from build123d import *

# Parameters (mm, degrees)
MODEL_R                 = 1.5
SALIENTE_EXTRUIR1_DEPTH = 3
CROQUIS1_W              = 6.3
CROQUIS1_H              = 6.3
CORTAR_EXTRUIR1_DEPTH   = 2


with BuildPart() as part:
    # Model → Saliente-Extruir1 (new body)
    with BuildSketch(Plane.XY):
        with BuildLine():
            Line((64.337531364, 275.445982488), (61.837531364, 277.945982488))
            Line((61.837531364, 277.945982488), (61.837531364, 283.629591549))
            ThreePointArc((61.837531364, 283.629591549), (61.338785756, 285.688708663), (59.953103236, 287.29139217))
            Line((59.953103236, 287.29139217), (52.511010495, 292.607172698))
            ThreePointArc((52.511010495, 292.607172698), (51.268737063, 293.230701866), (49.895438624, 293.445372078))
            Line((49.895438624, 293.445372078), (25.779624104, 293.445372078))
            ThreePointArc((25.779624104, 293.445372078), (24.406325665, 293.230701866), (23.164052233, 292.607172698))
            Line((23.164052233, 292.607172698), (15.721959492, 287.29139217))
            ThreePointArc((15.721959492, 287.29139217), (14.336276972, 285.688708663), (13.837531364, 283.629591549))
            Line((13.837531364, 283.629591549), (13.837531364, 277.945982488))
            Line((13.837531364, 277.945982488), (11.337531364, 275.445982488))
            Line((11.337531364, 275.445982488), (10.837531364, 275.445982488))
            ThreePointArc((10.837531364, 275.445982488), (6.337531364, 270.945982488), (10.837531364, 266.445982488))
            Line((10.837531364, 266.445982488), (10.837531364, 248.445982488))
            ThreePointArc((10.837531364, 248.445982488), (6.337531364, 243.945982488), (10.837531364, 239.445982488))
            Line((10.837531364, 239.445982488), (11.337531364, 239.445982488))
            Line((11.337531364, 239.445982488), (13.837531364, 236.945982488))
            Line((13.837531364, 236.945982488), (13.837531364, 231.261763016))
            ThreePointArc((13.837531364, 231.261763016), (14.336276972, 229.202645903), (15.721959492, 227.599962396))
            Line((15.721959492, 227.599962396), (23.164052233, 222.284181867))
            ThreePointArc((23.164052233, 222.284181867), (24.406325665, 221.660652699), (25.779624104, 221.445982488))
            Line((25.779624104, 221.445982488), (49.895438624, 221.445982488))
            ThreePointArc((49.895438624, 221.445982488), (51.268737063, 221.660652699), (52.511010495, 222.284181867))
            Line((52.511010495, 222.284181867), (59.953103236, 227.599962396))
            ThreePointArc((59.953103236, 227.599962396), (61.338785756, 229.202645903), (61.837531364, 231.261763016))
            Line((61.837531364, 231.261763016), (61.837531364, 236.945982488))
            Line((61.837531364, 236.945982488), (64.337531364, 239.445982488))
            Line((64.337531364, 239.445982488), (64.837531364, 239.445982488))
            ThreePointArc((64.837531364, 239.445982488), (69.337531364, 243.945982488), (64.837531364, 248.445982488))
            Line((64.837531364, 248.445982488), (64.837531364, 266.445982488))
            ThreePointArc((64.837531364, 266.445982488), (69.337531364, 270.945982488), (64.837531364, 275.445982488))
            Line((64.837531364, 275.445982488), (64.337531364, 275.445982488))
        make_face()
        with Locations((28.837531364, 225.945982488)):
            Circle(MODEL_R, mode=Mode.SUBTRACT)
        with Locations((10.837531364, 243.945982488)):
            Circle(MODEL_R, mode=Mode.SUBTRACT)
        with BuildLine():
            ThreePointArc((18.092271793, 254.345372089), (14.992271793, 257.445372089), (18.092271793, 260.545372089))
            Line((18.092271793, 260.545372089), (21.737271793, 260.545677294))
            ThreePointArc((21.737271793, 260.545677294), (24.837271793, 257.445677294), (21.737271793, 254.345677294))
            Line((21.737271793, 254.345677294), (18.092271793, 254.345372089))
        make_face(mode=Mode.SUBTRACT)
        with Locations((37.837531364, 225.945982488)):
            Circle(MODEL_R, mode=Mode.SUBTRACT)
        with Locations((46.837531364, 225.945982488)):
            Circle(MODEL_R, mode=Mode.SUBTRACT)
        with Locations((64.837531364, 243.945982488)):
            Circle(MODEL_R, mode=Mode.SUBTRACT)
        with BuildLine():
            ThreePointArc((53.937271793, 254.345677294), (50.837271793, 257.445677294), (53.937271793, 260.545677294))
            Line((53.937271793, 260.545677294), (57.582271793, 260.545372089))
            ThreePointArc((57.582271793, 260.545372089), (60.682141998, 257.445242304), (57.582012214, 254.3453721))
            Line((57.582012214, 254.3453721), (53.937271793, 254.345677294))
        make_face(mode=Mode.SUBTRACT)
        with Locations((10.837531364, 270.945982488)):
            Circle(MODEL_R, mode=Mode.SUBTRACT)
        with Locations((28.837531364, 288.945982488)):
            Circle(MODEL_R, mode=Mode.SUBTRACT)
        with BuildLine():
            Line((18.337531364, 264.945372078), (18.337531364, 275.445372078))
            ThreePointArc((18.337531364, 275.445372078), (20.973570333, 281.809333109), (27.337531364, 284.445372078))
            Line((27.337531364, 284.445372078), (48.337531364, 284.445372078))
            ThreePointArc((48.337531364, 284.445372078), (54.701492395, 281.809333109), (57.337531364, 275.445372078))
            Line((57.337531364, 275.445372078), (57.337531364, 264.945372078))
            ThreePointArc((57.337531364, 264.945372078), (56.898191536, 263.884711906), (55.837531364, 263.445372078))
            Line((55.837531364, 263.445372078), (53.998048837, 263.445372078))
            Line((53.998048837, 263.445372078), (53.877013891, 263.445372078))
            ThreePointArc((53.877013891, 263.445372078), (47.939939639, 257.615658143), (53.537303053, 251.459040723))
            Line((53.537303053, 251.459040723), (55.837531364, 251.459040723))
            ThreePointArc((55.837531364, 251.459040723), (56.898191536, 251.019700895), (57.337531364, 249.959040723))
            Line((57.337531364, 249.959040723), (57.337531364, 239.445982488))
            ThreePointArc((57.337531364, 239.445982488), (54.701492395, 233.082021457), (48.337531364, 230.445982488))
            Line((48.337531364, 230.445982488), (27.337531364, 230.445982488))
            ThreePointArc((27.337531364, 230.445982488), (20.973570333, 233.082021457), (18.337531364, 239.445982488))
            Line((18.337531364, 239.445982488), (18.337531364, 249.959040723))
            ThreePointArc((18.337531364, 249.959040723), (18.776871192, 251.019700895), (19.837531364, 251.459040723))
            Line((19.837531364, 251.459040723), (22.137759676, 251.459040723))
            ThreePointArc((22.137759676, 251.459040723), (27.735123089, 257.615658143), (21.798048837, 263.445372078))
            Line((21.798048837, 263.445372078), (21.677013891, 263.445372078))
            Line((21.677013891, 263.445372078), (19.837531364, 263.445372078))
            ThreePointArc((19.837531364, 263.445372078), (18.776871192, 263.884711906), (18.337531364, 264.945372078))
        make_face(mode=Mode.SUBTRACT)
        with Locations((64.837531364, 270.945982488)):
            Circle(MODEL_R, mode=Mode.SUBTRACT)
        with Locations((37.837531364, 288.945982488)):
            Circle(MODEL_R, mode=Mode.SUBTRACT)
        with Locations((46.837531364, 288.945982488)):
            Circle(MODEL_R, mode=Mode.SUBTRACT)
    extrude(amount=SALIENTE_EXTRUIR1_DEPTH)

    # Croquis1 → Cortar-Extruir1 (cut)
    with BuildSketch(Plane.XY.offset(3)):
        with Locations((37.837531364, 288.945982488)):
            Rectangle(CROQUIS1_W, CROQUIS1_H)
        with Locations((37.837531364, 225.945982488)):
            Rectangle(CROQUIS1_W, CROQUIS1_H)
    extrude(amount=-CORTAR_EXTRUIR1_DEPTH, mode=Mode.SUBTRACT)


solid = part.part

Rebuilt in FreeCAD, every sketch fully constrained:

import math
import FreeCAD as App
import Part
import Sketcher


def add_polygon(sketch, points):
    """Adds a closed chain of lines whose ends are joined by coincident constraints."""
    first, n = sketch.GeometryCount, len(points)
    for a, b in zip(points, points[1:] + points[:1]):
        sketch.addGeometry(Part.LineSegment(App.Vector(*a, 0), App.Vector(*b, 0)), False)
    for i in range(n):
        sketch.addConstraint(Sketcher.Constraint("Coincident", first + i, 2, first + (i + 1) % n, 1))

doc = App.newDocument("Part")
body = doc.addObject("PartDesign::Body", "Body")

# Sketch on XY plane
sketch1 = body.newObject("Sketcher::SketchObject", "Sketch")
sketch1.AttachmentSupport = (doc.getObject("XY_Plane"), [""])
sketch1.MapMode = "FlatFace"
sketch1.addGeometry(Part.LineSegment(App.Vector(64.337531, 275.445982, 0), App.Vector(61.837531, 277.945982, 0)), False)
sketch1.addGeometry(Part.LineSegment(App.Vector(61.837531, 277.945982, 0), App.Vector(61.837531, 283.629592, 0)), False)
sketch1.addGeometry(Part.ArcOfCircle(Part.Circle(App.Vector(57.337531, 283.629592, 0), App.Vector(0, 0, 1), 4.5), math.radians(0), math.radians(54.462322)), False)
sketch1.addGeometry(Part.LineSegment(App.Vector(59.953103, 287.291392, 0), App.Vector(52.51101, 292.607173, 0)), False)
sketch1.addGeometry(Part.ArcOfCircle(Part.Circle(App.Vector(49.895439, 288.945372, 0), App.Vector(0, 0, 1), 4.5), math.radians(54.462322), math.radians(90)), False)
sketch1.addGeometry(Part.LineSegment(App.Vector(49.895439, 293.445372, 0), App.Vector(25.779624, 293.445372, 0)), False)
sketch1.addGeometry(Part.ArcOfCircle(Part.Circle(App.Vector(25.779624, 288.945372, 0), App.Vector(0, 0, 1), 4.5), math.radians(90), math.radians(125.537678)), False)
sketch1.addGeometry(Part.LineSegment(App.Vector(23.164052, 292.607173, 0), App.Vector(15.721959, 287.291392, 0)), False)
sketch1.addGeometry(Part.ArcOfCircle(Part.Circle(App.Vector(18.337531, 283.629592, 0), App.Vector(0, 0, 1), 4.5), math.radians(125.537678), math.radians(180)), False)
sketch1.addGeometry(Part.LineSegment(App.Vector(13.837531, 283.629592, 0), App.Vector(13.837531, 277.945982, 0)), False)
sketch1.addGeometry(Part.LineSegment(App.Vector(13.837531, 277.945982, 0), App.Vector(11.337531, 275.445982, 0)), False)
sketch1.addGeometry(Part.LineSegment(App.Vector(11.337531, 275.445982, 0), App.Vector(10.837531, 275.445982, 0)), False)
sketch1.addGeometry(Part.ArcOfCircle(Part.Circle(App.Vector(10.837531, 270.945982, 0), App.Vector(0, 0, 1), 4.5), math.radians(90), math.radians(270)), False)
sketch1.addGeometry(Part.LineSegment(App.Vector(10.837531, 266.445982, 0), App.Vector(10.837531, 248.445982, 0)), False)
sketch1.addGeometry(Part.ArcOfCircle(Part.Circle(App.Vector(10.837531, 243.945982, 0), App.Vector(0, 0, 1), 4.5), math.radians(90), math.radians(270)), False)
sketch1.addGeometry(Part.LineSegment(App.Vector(10.837531, 239.445982, 0), App.Vector(11.337531, 239.445982, 0)), False)
sketch1.addGeometry(Part.LineSegment(App.Vector(11.337531, 239.445982, 0), App.Vector(13.837531, 236.945982, 0)), False)
sketch1.addGeometry(Part.LineSegment(App.Vector(13.837531, 236.945982, 0), App.Vector(13.837531, 231.261763, 0)), False)
sketch1.addGeometry(Part.ArcOfCircle(Part.Circle(App.Vector(18.337531, 231.261763, 0), App.Vector(0, 0, 1), 4.5), math.radians(-180), math.radians(-125.537678)), False)
sketch1.addGeometry(Part.LineSegment(App.Vector(15.721959, 227.599962, 0), App.Vector(23.164052, 222.284182, 0)), False)
sketch1.addGeometry(Part.ArcOfCircle(Part.Circle(App.Vector(25.779624, 225.945982, 0), App.Vector(0, 0, 1), 4.5), math.radians(-125.537678), math.radians(-90)), False)
sketch1.addGeometry(Part.LineSegment(App.Vector(25.779624, 221.445982, 0), App.Vector(49.895439, 221.445982, 0)), False)
sketch1.addGeometry(Part.ArcOfCircle(Part.Circle(App.Vector(49.895439, 225.945982, 0), App.Vector(0, 0, 1), 4.5), math.radians(-90), math.radians(-54.462322)), False)
sketch1.addGeometry(Part.LineSegment(App.Vector(52.51101, 222.284182, 0), App.Vector(59.953103, 227.599962, 0)), False)
sketch1.addGeometry(Part.ArcOfCircle(Part.Circle(App.Vector(57.337531, 231.261763, 0), App.Vector(0, 0, 1), 4.5), math.radians(-54.462322), math.radians(0)), False)
sketch1.addGeometry(Part.LineSegment(App.Vector(61.837531, 231.261763, 0), App.Vector(61.837531, 236.945982, 0)), False)
sketch1.addGeometry(Part.LineSegment(App.Vector(61.837531, 236.945982, 0), App.Vector(64.337531, 239.445982, 0)), False)
sketch1.addGeometry(Part.LineSegment(App.Vector(64.337531, 239.445982, 0), App.Vector(64.837531, 239.445982, 0)), False)
sketch1.addGeometry(Part.ArcOfCircle(Part.Circle(App.Vector(64.837531, 243.945982, 0), App.Vector(0, 0, 1), 4.5), math.radians(-90), math.radians(90)), False)
sketch1.addGeometry(Part.LineSegment(App.Vector(64.837531, 248.445982, 0), App.Vector(64.837531, 266.445982, 0)), False)
sketch1.addGeometry(Part.ArcOfCircle(Part.Circle(App.Vector(64.837531, 270.945982, 0), App.Vector(0, 0, 1), 4.5), math.radians(-90), math.radians(90)), False)
sketch1.addGeometry(Part.LineSegment(App.Vector(64.837531, 275.445982, 0), App.Vector(64.337531, 275.445982, 0)), False)
sketch1.addGeometry(Part.Circle(App.Vector(28.837531, 225.945982, 0), App.Vector(0, 0, 1), 1.5), False)
sketch1.addGeometry(Part.Circle(App.Vector(10.837531, 243.945982, 0), App.Vector(0, 0, 1), 1.5), False)
sketch1.addGeometry(Part.LineSegment(App.Vector(21.737272, 254.345677, 0), App.Vector(18.092272, 254.345372, 0)), False)
sketch1.addGeometry(Part.ArcOfCircle(Part.Circle(App.Vector(18.092272, 257.445372, 0), App.Vector(0, 0, 1), 3.1), math.radians(90), math.radians(270)), False)
sketch1.addGeometry(Part.LineSegment(App.Vector(18.092272, 260.545372, 0), App.Vector(21.737272, 260.545677, 0)), False)
sketch1.addGeometry(Part.ArcOfCircle(Part.Circle(App.Vector(21.737272, 257.445677, 0), App.Vector(0, 0, 1), 3.1), math.radians(-90), math.radians(90)), False)
sketch1.addGeometry(Part.Circle(App.Vector(37.837531, 225.945982, 0), App.Vector(0, 0, 1), 1.5), False)
sketch1.addGeometry(Part.Circle(App.Vector(46.837531, 225.945982, 0), App.Vector(0, 0, 1), 1.5), False)
sketch1.addGeometry(Part.ArcOfCircle(Part.Circle(App.Vector(19.837531, 264.945372, 0), App.Vector(0, 0, 1), 1.5), math.radians(180), math.radians(270)), False)
sketch1.addGeometry(Part.LineSegment(App.Vector(18.337531, 264.945372, 0), App.Vector(18.337531, 275.445372, 0)), False)
sketch1.addGeometry(Part.ArcOfCircle(Part.Circle(App.Vector(27.337531, 275.445372, 0), App.Vector(0, 0, 1), 9), math.radians(90), math.radians(180)), False)
sketch1.addGeometry(Part.LineSegment(App.Vector(27.337531, 284.445372, 0), App.Vector(48.337531, 284.445372, 0)), False)
sketch1.addGeometry(Part.ArcOfCircle(Part.Circle(App.Vector(48.337531, 275.445372, 0), App.Vector(0, 0, 1), 9), math.radians(0), math.radians(90)), False)
sketch1.addGeometry(Part.LineSegment(App.Vector(57.337531, 275.445372, 0), App.Vector(57.337531, 264.945372, 0)), False)
sketch1.addGeometry(Part.ArcOfCircle(Part.Circle(App.Vector(55.837531, 264.945372, 0), App.Vector(0, 0, 1), 1.5), math.radians(-90), math.radians(0)), False)
sketch1.addGeometry(Part.LineSegment(App.Vector(55.837531, 263.445372, 0), App.Vector(53.877014, 263.445372, 0)), False)
sketch1.addGeometry(Part.ArcOfCircle(Part.Circle(App.Vector(53.937531, 257.445677, 0), App.Vector(0, 0, 1), 6), math.radians(90.577909), math.radians(266.175261)), False)
sketch1.addGeometry(Part.LineSegment(App.Vector(53.537303, 251.459041, 0), App.Vector(55.837531, 251.459041, 0)), False)
sketch1.addGeometry(Part.ArcOfCircle(Part.Circle(App.Vector(55.837531, 249.959041, 0), App.Vector(0, 0, 1), 1.5), math.radians(0), math.radians(90)), False)
sketch1.addGeometry(Part.LineSegment(App.Vector(57.337531, 249.959041, 0), App.Vector(57.337531, 239.445982, 0)), False)
sketch1.addGeometry(Part.ArcOfCircle(Part.Circle(App.Vector(48.337531, 239.445982, 0), App.Vector(0, 0, 1), 9), math.radians(-90), math.radians(0)), False)
sketch1.addGeometry(Part.LineSegment(App.Vector(48.337531, 230.445982, 0), App.Vector(27.337531, 230.445982, 0)), False)
sketch1.addGeometry(Part.ArcOfCircle(Part.Circle(App.Vector(27.337531, 239.445982, 0), App.Vector(0, 0, 1), 9), math.radians(180), math.radians(270)), False)
sketch1.addGeometry(Part.LineSegment(App.Vector(18.337531, 239.445982, 0), App.Vector(18.337531, 249.959041, 0)), False)
sketch1.addGeometry(Part.ArcOfCircle(Part.Circle(App.Vector(19.837531, 249.959041, 0), App.Vector(0, 0, 1), 1.5), math.radians(90), math.radians(180)), False)
sketch1.addGeometry(Part.LineSegment(App.Vector(19.837531, 251.459041, 0), App.Vector(22.13776, 251.459041, 0)), False)
sketch1.addGeometry(Part.ArcOfCircle(Part.Circle(App.Vector(21.737531, 257.445677, 0), App.Vector(0, 0, 1), 6), math.radians(-86.175261), math.radians(89.422091)), False)
sketch1.addGeometry(Part.LineSegment(App.Vector(21.798049, 263.445372, 0), App.Vector(19.837531, 263.445372, 0)), False)
sketch1.addGeometry(Part.Circle(App.Vector(64.837531, 243.945982, 0), App.Vector(0, 0, 1), 1.5), False)
sketch1.addGeometry(Part.LineSegment(App.Vector(57.582012, 254.345372, 0), App.Vector(53.937272, 254.345677, 0)), False)
sketch1.addGeometry(Part.ArcOfCircle(Part.Circle(App.Vector(53.937272, 257.445677, 0), App.Vector(0, 0, 1), 3.1), math.radians(90), math.radians(270)), False)
sketch1.addGeometry(Part.LineSegment(App.Vector(53.937272, 260.545677, 0), App.Vector(57.582272, 260.545372, 0)), False)
sketch1.addGeometry(Part.ArcOfCircle(Part.Circle(App.Vector(57.582142, 257.445372, 0), App.Vector(0, 0, 1), 3.1), math.radians(-90.002399), math.radians(89.997601)), False)
sketch1.addGeometry(Part.Circle(App.Vector(10.837531, 270.945982, 0), App.Vector(0, 0, 1), 1.5), False)
sketch1.addGeometry(Part.Circle(App.Vector(28.837531, 288.945982, 0), App.Vector(0, 0, 1), 1.5), False)
sketch1.addGeometry(Part.Circle(App.Vector(64.837531, 270.945982, 0), App.Vector(0, 0, 1), 1.5), False)
sketch1.addGeometry(Part.Circle(App.Vector(37.837531, 288.945982, 0), App.Vector(0, 0, 1), 1.5), False)
sketch1.addGeometry(Part.Circle(App.Vector(46.837531, 288.945982, 0), App.Vector(0, 0, 1), 1.5), False)
sketch1.addConstraint(Sketcher.Constraint("Coincident", 0, 2, 1, 1))
sketch1.addConstraint(Sketcher.Constraint("Tangent", 1, 2, 2, 1))
sketch1.addConstraint(Sketcher.Constraint("Tangent", 2, 2, 3, 1))
sketch1.addConstraint(Sketcher.Constraint("Tangent", 3, 2, 4, 1))
sketch1.addConstraint(Sketcher.Constraint("Tangent", 4, 2, 5, 1))
sketch1.addConstraint(Sketcher.Constraint("Tangent", 5, 2, 6, 1))
sketch1.addConstraint(Sketcher.Constraint("Tangent", 6, 2, 7, 1))
sketch1.addConstraint(Sketcher.Constraint("Tangent", 7, 2, 8, 1))
sketch1.addConstraint(Sketcher.Constraint("Tangent", 8, 2, 9, 1))
sketch1.addConstraint(Sketcher.Constraint("Coincident", 9, 2, 10, 1))
sketch1.addConstraint(Sketcher.Constraint("Coincident", 10, 2, 11, 1))
sketch1.addConstraint(Sketcher.Constraint("Tangent", 11, 2, 12, 1))
sketch1.addConstraint(Sketcher.Constraint("Coincident", 12, 2, 13, 1))
sketch1.addConstraint(Sketcher.Constraint("Coincident", 13, 2, 14, 1))
sketch1.addConstraint(Sketcher.Constraint("Tangent", 14, 2, 15, 1))
sketch1.addConstraint(Sketcher.Constraint("Coincident", 15, 2, 16, 1))
sketch1.addConstraint(Sketcher.Constraint("Coincident", 16, 2, 17, 1))
sketch1.addConstraint(Sketcher.Constraint("Tangent", 17, 2, 18, 1))
sketch1.addConstraint(Sketcher.Constraint("Tangent", 18, 2, 19, 1))
sketch1.addConstraint(Sketcher.Constraint("Tangent", 19, 2, 20, 1))
sketch1.addConstraint(Sketcher.Constraint("Tangent", 20, 2, 21, 1))
sketch1.addConstraint(Sketcher.Constraint("Tangent", 21, 2, 22, 1))
sketch1.addConstraint(Sketcher.Constraint("Tangent", 22, 2, 23, 1))
sketch1.addConstraint(Sketcher.Constraint("Tangent", 23, 2, 24, 1))
sketch1.addConstraint(Sketcher.Constraint("Tangent", 24, 2, 25, 1))
sketch1.addConstraint(Sketcher.Constraint("Coincident", 25, 2, 26, 1))
sketch1.addConstraint(Sketcher.Constraint("Coincident", 26, 2, 27, 1))
sketch1.addConstraint(Sketcher.Constraint("Tangent", 27, 2, 28, 1))
sketch1.addConstraint(Sketcher.Constraint("Coincident", 28, 2, 29, 1))
sketch1.addConstraint(Sketcher.Constraint("Coincident", 29, 2, 30, 1))
sketch1.addConstraint(Sketcher.Constraint("Tangent", 30, 2, 31, 1))
sketch1.addConstraint(Sketcher.Constraint("Coincident", 31, 2, 0, 1))
sketch1.addConstraint(Sketcher.Constraint("Coincident", 34, 2, 35, 2))
sketch1.addConstraint(Sketcher.Constraint("Coincident", 35, 1, 36, 1))
sketch1.addConstraint(Sketcher.Constraint("Coincident", 36, 2, 37, 2))
sketch1.addConstraint(Sketcher.Constraint("Coincident", 37, 1, 34, 1))
sketch1.addConstraint(Sketcher.Constraint("Tangent", 40, 1, 41, 1))
sketch1.addConstraint(Sketcher.Constraint("Tangent", 41, 2, 42, 2))
sketch1.addConstraint(Sketcher.Constraint("Tangent", 42, 1, 43, 1))
sketch1.addConstraint(Sketcher.Constraint("Tangent", 43, 2, 44, 2))
sketch1.addConstraint(Sketcher.Constraint("Tangent", 44, 1, 45, 1))
sketch1.addConstraint(Sketcher.Constraint("Tangent", 45, 2, 46, 2))
sketch1.addConstraint(Sketcher.Constraint("Tangent", 46, 1, 47, 1))
sketch1.addConstraint(Sketcher.Constraint("Coincident", 47, 2, 48, 1))
sketch1.addConstraint(Sketcher.Constraint("Coincident", 48, 2, 49, 1))
sketch1.addConstraint(Sketcher.Constraint("Tangent", 49, 2, 50, 2))
sketch1.addConstraint(Sketcher.Constraint("Tangent", 50, 1, 51, 1))
sketch1.addConstraint(Sketcher.Constraint("Tangent", 51, 2, 52, 2))
sketch1.addConstraint(Sketcher.Constraint("Tangent", 52, 1, 53, 1))
sketch1.addConstraint(Sketcher.Constraint("Tangent", 53, 2, 54, 2))
sketch1.addConstraint(Sketcher.Constraint("Tangent", 54, 1, 55, 1))
sketch1.addConstraint(Sketcher.Constraint("Tangent", 55, 2, 56, 2))
sketch1.addConstraint(Sketcher.Constraint("Tangent", 56, 1, 57, 1))
sketch1.addConstraint(Sketcher.Constraint("Coincident", 57, 2, 58, 1))
sketch1.addConstraint(Sketcher.Constraint("Coincident", 58, 2, 59, 1))
sketch1.addConstraint(Sketcher.Constraint("Tangent", 59, 2, 40, 2))
sketch1.addConstraint(Sketcher.Constraint("Coincident", 61, 2, 62, 2))
sketch1.addConstraint(Sketcher.Constraint("Coincident", 62, 1, 63, 1))
sketch1.addConstraint(Sketcher.Constraint("Coincident", 63, 2, 64, 2))
sketch1.addConstraint(Sketcher.Constraint("Coincident", 64, 1, 61, 1))
sketch1.addConstraint(Sketcher.Constraint("Vertical", 1))
sketch1.addConstraint(Sketcher.Constraint("Horizontal", 5))
sketch1.addConstraint(Sketcher.Constraint("Vertical", 9))
sketch1.addConstraint(Sketcher.Constraint("Horizontal", 11))
sketch1.addConstraint(Sketcher.Constraint("Vertical", 13))
sketch1.addConstraint(Sketcher.Constraint("Horizontal", 15))
sketch1.addConstraint(Sketcher.Constraint("Vertical", 17))
sketch1.addConstraint(Sketcher.Constraint("Horizontal", 21))
sketch1.addConstraint(Sketcher.Constraint("Vertical", 25))
sketch1.addConstraint(Sketcher.Constraint("Horizontal", 27))
sketch1.addConstraint(Sketcher.Constraint("Vertical", 29))
sketch1.addConstraint(Sketcher.Constraint("Horizontal", 31))
sketch1.addConstraint(Sketcher.Constraint("Vertical", 41))
sketch1.addConstraint(Sketcher.Constraint("Horizontal", 43))
sketch1.addConstraint(Sketcher.Constraint("Vertical", 45))
sketch1.addConstraint(Sketcher.Constraint("Horizontal", 47))
sketch1.addConstraint(Sketcher.Constraint("Horizontal", 49))
sketch1.addConstraint(Sketcher.Constraint("Vertical", 51))
sketch1.addConstraint(Sketcher.Constraint("Horizontal", 53))
sketch1.addConstraint(Sketcher.Constraint("Vertical", 55))
sketch1.addConstraint(Sketcher.Constraint("Horizontal", 57))
sketch1.addConstraint(Sketcher.Constraint("Horizontal", 59))
sketch1.addConstraint(Sketcher.Constraint("Coincident", 33, 3, 14, 3))
sketch1.addConstraint(Sketcher.Constraint("Coincident", 60, 3, 28, 3))
sketch1.addConstraint(Sketcher.Constraint("Coincident", 65, 3, 12, 3))
sketch1.addConstraint(Sketcher.Constraint("Coincident", 67, 3, 30, 3))
sketch1.addConstraint(Sketcher.Constraint("Equal", 2, 4))
sketch1.addConstraint(Sketcher.Constraint("Equal", 4, 6))
sketch1.addConstraint(Sketcher.Constraint("Equal", 6, 8))
sketch1.addConstraint(Sketcher.Constraint("Equal", 8, 12))
sketch1.addConstraint(Sketcher.Constraint("Equal", 12, 14))
sketch1.addConstraint(Sketcher.Constraint("Equal", 14, 18))
sketch1.addConstraint(Sketcher.Constraint("Equal", 18, 20))
sketch1.addConstraint(Sketcher.Constraint("Equal", 20, 22))
sketch1.addConstraint(Sketcher.Constraint("Equal", 22, 24))
sketch1.addConstraint(Sketcher.Constraint("Equal", 24, 28))
sketch1.addConstraint(Sketcher.Constraint("Equal", 28, 30))
sketch1.addConstraint(Sketcher.Constraint("Equal", 32, 33))
sketch1.addConstraint(Sketcher.Constraint("Equal", 35, 37))
sketch1.addConstraint(Sketcher.Constraint("Equal", 33, 38))
sketch1.addConstraint(Sketcher.Constraint("Equal", 38, 39))
sketch1.addConstraint(Sketcher.Constraint("Equal", 39, 40))
sketch1.addConstraint(Sketcher.Constraint("Equal", 42, 44))
sketch1.addConstraint(Sketcher.Constraint("Equal", 40, 46))
sketch1.addConstraint(Sketcher.Constraint("Equal", 46, 50))
sketch1.addConstraint(Sketcher.Constraint("Equal", 44, 52))
sketch1.addConstraint(Sketcher.Constraint("Equal", 52, 54))
sketch1.addConstraint(Sketcher.Constraint("Equal", 50, 56))
sketch1.addConstraint(Sketcher.Constraint("Equal", 48, 58))
sketch1.addConstraint(Sketcher.Constraint("Equal", 56, 60))
sketch1.addConstraint(Sketcher.Constraint("Equal", 37, 62))
sketch1.addConstraint(Sketcher.Constraint("Equal", 62, 64))
sketch1.addConstraint(Sketcher.Constraint("Equal", 60, 65))
sketch1.addConstraint(Sketcher.Constraint("Equal", 65, 66))
sketch1.addConstraint(Sketcher.Constraint("Equal", 66, 67))
sketch1.addConstraint(Sketcher.Constraint("Equal", 67, 68))
sketch1.addConstraint(Sketcher.Constraint("Equal", 68, 69))
sketch1.addConstraint(Sketcher.Constraint("Perpendicular", 0, 10))
sketch1.addConstraint(Sketcher.Constraint("Perpendicular", 10, 16))
sketch1.addConstraint(Sketcher.Constraint("Parallel", 3, 19))
sketch1.addConstraint(Sketcher.Constraint("Parallel", 7, 23))
sketch1.addConstraint(Sketcher.Constraint("Perpendicular", 16, 26))
sketch1.addConstraint(Sketcher.Constraint("Horizontal", 2, 3, 8, 3))
sketch1.addConstraint(Sketcher.Constraint("Horizontal", 18, 3, 24, 3))
sketch1.addConstraint(Sketcher.Constraint("Horizontal", 14, 3, 28, 3))
sketch1.addConstraint(Sketcher.Constraint("Horizontal", 12, 3, 30, 3))
sketch1.addConstraint(Sketcher.Constraint("Horizontal", 22, 3, 32, 3))
sketch1.addConstraint(Sketcher.Constraint("Horizontal", 32, 3, 38, 3))
sketch1.addConstraint(Sketcher.Constraint("Horizontal", 38, 3, 39, 3))
sketch1.addConstraint(Sketcher.Constraint("Horizontal", 40, 3, 46, 3))
sketch1.addConstraint(Sketcher.Constraint("Horizontal", 37, 3, 48, 3))
sketch1.addConstraint(Sketcher.Constraint("Horizontal", 50, 3, 56, 3))
sketch1.addConstraint(Sketcher.Constraint("Horizontal", 48, 3, 58, 3))
sketch1.addConstraint(Sketcher.Constraint("Horizontal", 58, 3, 62, 3))
sketch1.addConstraint(Sketcher.Constraint("Horizontal", 35, 3, 64, 3))
sketch1.addConstraint(Sketcher.Constraint("Horizontal", 66, 3, 68, 3))
sketch1.addConstraint(Sketcher.Constraint("Horizontal", 68, 3, 69, 3))
sketch1.addConstraint(Sketcher.Constraint("Horizontal", 3, 2, 6, 2))
sketch1.addConstraint(Sketcher.Constraint("Horizontal", 0, 2, 9, 2))
sketch1.addConstraint(Sketcher.Constraint("Horizontal", 54, 3, 14, 2))
sketch1.addConstraint(Sketcher.Constraint("Horizontal", 16, 2, 25, 2))
sketch1.addConstraint(Sketcher.Constraint("Vertical", 12, 3, 14, 3))
sketch1.addConstraint(Sketcher.Constraint("Vertical", 8, 3, 18, 3))
sketch1.addConstraint(Sketcher.Constraint("Vertical", 6, 3, 20, 3))
sketch1.addConstraint(Sketcher.Constraint("Vertical", 4, 3, 22, 3))
sketch1.addConstraint(Sketcher.Constraint("Vertical", 28, 3, 30, 3))
sketch1.addConstraint(Sketcher.Constraint("Vertical", 46, 3, 50, 3))
sketch1.addConstraint(Sketcher.Constraint("Vertical", 42, 3, 54, 3))
sketch1.addConstraint(Sketcher.Constraint("Vertical", 32, 3, 66, 3))
sketch1.addConstraint(Sketcher.Constraint("Vertical", 38, 3, 68, 3))
sketch1.addConstraint(Sketcher.Constraint("Vertical", 39, 3, 69, 3))
sketch1.addConstraint(Sketcher.Constraint("Vertical", 11, 2, 12, 2))
sketch1.addConstraint(Sketcher.Constraint("Vertical", 10, 2, 15, 2))
sketch1.addConstraint(Sketcher.Constraint("Vertical", 27, 2, 28, 2))
sketch1.addConstraint(Sketcher.Constraint("Vertical", 26, 2, 31, 2))
sketch1.addConstraint(Sketcher.Constraint("Vertical", 35, 3, 34, 2))
sketch1.addConstraint(Sketcher.Constraint("Vertical", 34, 2, 35, 1))
sketch1.addConstraint(Sketcher.Constraint("Vertical", 37, 3, 36, 2))
sketch1.addConstraint(Sketcher.Constraint("Vertical", 36, 2, 37, 1))
sketch1.addConstraint(Sketcher.Constraint("Vertical", 18, 3, 40, 1))
sketch1.addConstraint(Sketcher.Constraint("Vertical", 24, 3, 44, 1))
sketch1.addConstraint(Sketcher.Constraint("Vertical", 62, 3, 61, 2))
sketch1.addConstraint(Sketcher.Constraint("Vertical", 61, 2, 62, 1))
sketch1.addConstraint(Sketcher.Constraint("Equal", 15, 27))
sketch1.addConstraint(Sketcher.Constraint("Equal", 49, 57))
sketch1.addConstraint(Sketcher.Constraint("Equal", 36, 63))
sketch1.addConstraint(Sketcher.Constraint("Diameter", 32, 3.0))
sketch1.addConstraint(Sketcher.Constraint("Radius", 42, 9.0))
sketch1.addConstraint(Sketcher.Constraint("Radius", 48, 6.0))
sketch1.addConstraint(Sketcher.Constraint("Radius", 2, 4.5))
sketch1.addConstraint(Sketcher.Constraint("Radius", 35, 3.1))
sketch1.addConstraint(Sketcher.Constraint("DistanceX", 43, 1, 43, 2, 21.0))
sketch1.addConstraint(Sketcher.Constraint("DistanceY", 13, 2, 13, 1, 18.0))
sketch1.addConstraint(Sketcher.Constraint("DistanceX", 11, 2, 11, 1, 0.5))
sketch1.addConstraint(Sketcher.Constraint("DistanceY", 41, 1, 41, 2, 10.5))
sketch1.addConstraint(Sketcher.Constraint("Distance", 34, 3.645))
sketch1.addConstraint(Sketcher.Constraint("DistanceX", 49, 1, 49, 2, 2.300228))
sketch1.addConstraint(Sketcher.Constraint("DistanceY", 1, 1, 1, 2, 5.683609))
sketch1.addConstraint(Sketcher.Constraint("DistanceY", 17, 2, 17, 1, 5.684219))
sketch1.addConstraint(Sketcher.Constraint("DistanceY", 51, 2, 51, 1, 10.513058))
sketch1.addConstraint(Sketcher.Constraint("Distance", 61, 3.64474))
sketch1.addConstraint(Sketcher.Constraint("DistanceX", 5, 2, 5, 1, 24.115815))
sketch1.addConstraint(Sketcher.Constraint("DistanceX", 47, 2, 47, 1, 1.960517))
sketch1.addConstraint(Sketcher.Constraint("DistanceX", -1, 1, 2, 3, 57.337531))
sketch1.addConstraint(Sketcher.Constraint("DistanceY", -1, 1, 2, 3, 283.629592))
sketch1.addConstraint(Sketcher.Constraint("DistanceX", -1, 1, 12, 3, 10.837531))
sketch1.addConstraint(Sketcher.Constraint("DistanceX", -1, 1, 32, 3, 28.837531))
sketch1.addConstraint(Sketcher.Constraint("DistanceX", -1, 1, 35, 3, 18.092272))
sketch1.addConstraint(Sketcher.Constraint("DistanceX", -1, 1, 38, 3, 37.837531))
sketch1.addConstraint(Sketcher.Constraint("DistanceX", -1, 1, 39, 3, 46.837531))
sketch1.addConstraint(Sketcher.Constraint("DistanceX", -1, 1, 48, 3, 53.937531))
sketch1.addConstraint(Sketcher.Constraint("DistanceX", -1, 1, 62, 3, 53.937272))
sketch1.addConstraint(Sketcher.Constraint("DistanceX", -1, 1, 3, 2, 52.51101))
sketch1.addConstraint(Sketcher.Constraint("DistanceY", -1, 1, 35, 3, 257.445372))
sketch1.addConstraint(Sketcher.Constraint("DistanceX", -1, 1, 64, 3, 57.582142))
sketch1.addConstraint(Sketcher.Constraint("DistanceY", -1, 1, 66, 3, 288.945982))
pad1 = body.newObject("PartDesign::Pad", "Pad")
pad1.Profile = sketch1
pad1.Length = 3

# Sketch on XY plane
sketch2 = body.newObject("Sketcher::SketchObject", "Sketch001")
sketch2.AttachmentSupport = (doc.getObject("XY_Plane"), [""])
sketch2.MapMode = "FlatFace"
sketch2.AttachmentOffset = App.Placement(App.Vector(0, 0, 3), App.Rotation())
add_polygon(sketch2, [(34.687531, 292.095982), (34.687531, 285.795982), (40.987531, 285.795982), (40.987531, 292.095982)])  # lines 0-3
add_polygon(sketch2, [(34.687531, 229.095982), (34.687531, 222.795982), (40.987531, 222.795982), (40.987531, 229.095982)])  # lines 4-7
sketch2.addConstraint(Sketcher.Constraint("Vertical", 0))
sketch2.addConstraint(Sketcher.Constraint("Horizontal", 1))
sketch2.addConstraint(Sketcher.Constraint("Vertical", 2))
sketch2.addConstraint(Sketcher.Constraint("Horizontal", 3))
sketch2.addConstraint(Sketcher.Constraint("Vertical", 4))
sketch2.addConstraint(Sketcher.Constraint("Horizontal", 5))
sketch2.addConstraint(Sketcher.Constraint("Vertical", 6))
sketch2.addConstraint(Sketcher.Constraint("Horizontal", 7))
sketch2.addConstraint(Sketcher.Constraint("Vertical", 3, 2, 4, 2))
sketch2.addConstraint(Sketcher.Constraint("Vertical", 2, 2, 5, 2))
sketch2.addConstraint(Sketcher.Constraint("Equal", 7, 0))
sketch2.addConstraint(Sketcher.Constraint("Equal", 2, 4))
sketch2.addConstraint(Sketcher.Constraint("DistanceX", 1, 1, 1, 2, 6.3))
sketch2.addConstraint(Sketcher.Constraint("DistanceY", 4, 2, 0, 2, 63.0))
sketch2.addConstraint(Sketcher.Constraint("DistanceX", -1, 1, 0, 2, 34.687531))
sketch2.addConstraint(Sketcher.Constraint("DistanceY", -1, 1, 0, 2, 285.795982))
pocket1 = body.newObject("PartDesign::Pocket", "Pocket")
pocket1.Profile = sketch2
pocket1.Length = 2

doc.recompute()
